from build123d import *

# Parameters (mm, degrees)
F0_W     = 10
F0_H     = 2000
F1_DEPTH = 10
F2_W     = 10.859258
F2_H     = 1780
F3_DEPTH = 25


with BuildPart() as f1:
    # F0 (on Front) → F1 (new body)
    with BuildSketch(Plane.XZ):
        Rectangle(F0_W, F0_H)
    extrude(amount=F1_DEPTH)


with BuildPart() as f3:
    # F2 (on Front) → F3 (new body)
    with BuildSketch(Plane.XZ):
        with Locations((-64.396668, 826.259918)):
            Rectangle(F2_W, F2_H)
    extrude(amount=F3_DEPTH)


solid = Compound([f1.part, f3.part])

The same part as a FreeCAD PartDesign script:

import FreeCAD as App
import Part
import Sketcher
Q = App.Units.Quantity

doc = App.newDocument("Part")
body = doc.addObject("PartDesign::Body", "Body")

# Sketch on XZ plane
sketch1 = doc.addObject("Sketcher::SketchObject", "Sketch")
body.addObject(sketch1)
sketch1.AttachmentSupport = (doc.XZ_Plane, [""])
sketch1.MapMode = "FlatFace"
sketch1.addGeometry([
    Part.LineSegment(App.Vector(-5, 1000, 0), App.Vector(-5, -1000, 0)),
    Part.LineSegment(App.Vector(-5, -1000, 0), App.Vector(5, -1000, 0)),
    Part.LineSegment(App.Vector(5, -1000, 0), App.Vector(5, 1000, 0)),
    Part.LineSegment(App.Vector(5, 1000, 0), App.Vector(-5, 1000, 0)),
], False)
sketch1.addConstraint([
    Sketcher.Constraint("Coincident", 0, 2, 1, 1),
    Sketcher.Constraint("Coincident", 1, 2, 2, 1),
    Sketcher.Constraint("Coincident", 2, 2, 3, 1),
    Sketcher.Constraint("Coincident", 3, 2, 0, 1),
    Sketcher.Constraint("Vertical", 0),
    Sketcher.Constraint("Horizontal", 1),
    Sketcher.Constraint("Vertical", 2),
    Sketcher.Constraint("Horizontal", 3),
    Sketcher.Constraint("Symmetric", 0, 2, 2, 2, -1, 1),
    Sketcher.Constraint("DistanceX", 1, 1, 1, 2, Q("10 mm")),
    Sketcher.Constraint("DistanceY", 0, 2, 0, 1, Q("2000 mm")),
])
pad1 = doc.addObject("PartDesign::Pad", "Pad")
body.addObject(pad1)
pad1.Profile = sketch1
pad1.Length = 10
body2 = doc.addObject("PartDesign::Body", "Body001")

# Sketch on XZ plane
sketch2 = doc.addObject("Sketcher::SketchObject", "Sketch001")
body2.addObject(sketch2)
sketch2.AttachmentSupport = (doc.getObject("XZ_Plane001"), [""])
sketch2.MapMode = "FlatFace"
sketch2.addGeometry([
    Part.LineSegment(App.Vector(-69.826297, 1716.259918, 0), App.Vector(-69.826297, -63.740082, 0)),
    Part.LineSegment(App.Vector(-69.826297, -63.740082, 0), App.Vector(-58.967039, -63.740082, 0)),
    Part.LineSegment(App.Vector(-58.967039, -63.740082, 0), App.Vector(-58.967039, 1716.259918, 0)),
    Part.LineSegment(App.Vector(-58.967039, 1716.259918, 0), App.Vector(-69.826297, 1716.259918, 0)),
], False)
sketch2.addConstraint([
    Sketcher.Constraint("Coincident", 0, 2, 1, 1),
    Sketcher.Constraint("Coincident", 1, 2, 2, 1),
    Sketcher.Constraint("Coincident", 2, 2, 3, 1),
    Sketcher.Constraint("Coincident", 3, 2, 0, 1),
    Sketcher.Constraint("Vertical", 0),
    Sketcher.Constraint("Horizontal", 1),
    Sketcher.Constraint("Vertical", 2),
    Sketcher.Constraint("Horizontal", 3),
    Sketcher.Constraint("DistanceY", 0, 2, 0, 1, Q("1780 mm")),
    Sketcher.Constraint("DistanceX", 1, 1, 1, 2, Q("10.859258 mm")),
    Sketcher.Constraint("DistanceX", 1, 2, -1, 1, Q("58.967039 mm")),
    Sketcher.Constraint("DistanceY", -1, 1, 2, 2, Q("1716.259918 mm")),
])
pad2 = doc.addObject("PartDesign::Pad", "Pad001")
body2.addObject(pad2)
pad2.Profile = sketch2
pad2.Length = 25

doc.recompute()
